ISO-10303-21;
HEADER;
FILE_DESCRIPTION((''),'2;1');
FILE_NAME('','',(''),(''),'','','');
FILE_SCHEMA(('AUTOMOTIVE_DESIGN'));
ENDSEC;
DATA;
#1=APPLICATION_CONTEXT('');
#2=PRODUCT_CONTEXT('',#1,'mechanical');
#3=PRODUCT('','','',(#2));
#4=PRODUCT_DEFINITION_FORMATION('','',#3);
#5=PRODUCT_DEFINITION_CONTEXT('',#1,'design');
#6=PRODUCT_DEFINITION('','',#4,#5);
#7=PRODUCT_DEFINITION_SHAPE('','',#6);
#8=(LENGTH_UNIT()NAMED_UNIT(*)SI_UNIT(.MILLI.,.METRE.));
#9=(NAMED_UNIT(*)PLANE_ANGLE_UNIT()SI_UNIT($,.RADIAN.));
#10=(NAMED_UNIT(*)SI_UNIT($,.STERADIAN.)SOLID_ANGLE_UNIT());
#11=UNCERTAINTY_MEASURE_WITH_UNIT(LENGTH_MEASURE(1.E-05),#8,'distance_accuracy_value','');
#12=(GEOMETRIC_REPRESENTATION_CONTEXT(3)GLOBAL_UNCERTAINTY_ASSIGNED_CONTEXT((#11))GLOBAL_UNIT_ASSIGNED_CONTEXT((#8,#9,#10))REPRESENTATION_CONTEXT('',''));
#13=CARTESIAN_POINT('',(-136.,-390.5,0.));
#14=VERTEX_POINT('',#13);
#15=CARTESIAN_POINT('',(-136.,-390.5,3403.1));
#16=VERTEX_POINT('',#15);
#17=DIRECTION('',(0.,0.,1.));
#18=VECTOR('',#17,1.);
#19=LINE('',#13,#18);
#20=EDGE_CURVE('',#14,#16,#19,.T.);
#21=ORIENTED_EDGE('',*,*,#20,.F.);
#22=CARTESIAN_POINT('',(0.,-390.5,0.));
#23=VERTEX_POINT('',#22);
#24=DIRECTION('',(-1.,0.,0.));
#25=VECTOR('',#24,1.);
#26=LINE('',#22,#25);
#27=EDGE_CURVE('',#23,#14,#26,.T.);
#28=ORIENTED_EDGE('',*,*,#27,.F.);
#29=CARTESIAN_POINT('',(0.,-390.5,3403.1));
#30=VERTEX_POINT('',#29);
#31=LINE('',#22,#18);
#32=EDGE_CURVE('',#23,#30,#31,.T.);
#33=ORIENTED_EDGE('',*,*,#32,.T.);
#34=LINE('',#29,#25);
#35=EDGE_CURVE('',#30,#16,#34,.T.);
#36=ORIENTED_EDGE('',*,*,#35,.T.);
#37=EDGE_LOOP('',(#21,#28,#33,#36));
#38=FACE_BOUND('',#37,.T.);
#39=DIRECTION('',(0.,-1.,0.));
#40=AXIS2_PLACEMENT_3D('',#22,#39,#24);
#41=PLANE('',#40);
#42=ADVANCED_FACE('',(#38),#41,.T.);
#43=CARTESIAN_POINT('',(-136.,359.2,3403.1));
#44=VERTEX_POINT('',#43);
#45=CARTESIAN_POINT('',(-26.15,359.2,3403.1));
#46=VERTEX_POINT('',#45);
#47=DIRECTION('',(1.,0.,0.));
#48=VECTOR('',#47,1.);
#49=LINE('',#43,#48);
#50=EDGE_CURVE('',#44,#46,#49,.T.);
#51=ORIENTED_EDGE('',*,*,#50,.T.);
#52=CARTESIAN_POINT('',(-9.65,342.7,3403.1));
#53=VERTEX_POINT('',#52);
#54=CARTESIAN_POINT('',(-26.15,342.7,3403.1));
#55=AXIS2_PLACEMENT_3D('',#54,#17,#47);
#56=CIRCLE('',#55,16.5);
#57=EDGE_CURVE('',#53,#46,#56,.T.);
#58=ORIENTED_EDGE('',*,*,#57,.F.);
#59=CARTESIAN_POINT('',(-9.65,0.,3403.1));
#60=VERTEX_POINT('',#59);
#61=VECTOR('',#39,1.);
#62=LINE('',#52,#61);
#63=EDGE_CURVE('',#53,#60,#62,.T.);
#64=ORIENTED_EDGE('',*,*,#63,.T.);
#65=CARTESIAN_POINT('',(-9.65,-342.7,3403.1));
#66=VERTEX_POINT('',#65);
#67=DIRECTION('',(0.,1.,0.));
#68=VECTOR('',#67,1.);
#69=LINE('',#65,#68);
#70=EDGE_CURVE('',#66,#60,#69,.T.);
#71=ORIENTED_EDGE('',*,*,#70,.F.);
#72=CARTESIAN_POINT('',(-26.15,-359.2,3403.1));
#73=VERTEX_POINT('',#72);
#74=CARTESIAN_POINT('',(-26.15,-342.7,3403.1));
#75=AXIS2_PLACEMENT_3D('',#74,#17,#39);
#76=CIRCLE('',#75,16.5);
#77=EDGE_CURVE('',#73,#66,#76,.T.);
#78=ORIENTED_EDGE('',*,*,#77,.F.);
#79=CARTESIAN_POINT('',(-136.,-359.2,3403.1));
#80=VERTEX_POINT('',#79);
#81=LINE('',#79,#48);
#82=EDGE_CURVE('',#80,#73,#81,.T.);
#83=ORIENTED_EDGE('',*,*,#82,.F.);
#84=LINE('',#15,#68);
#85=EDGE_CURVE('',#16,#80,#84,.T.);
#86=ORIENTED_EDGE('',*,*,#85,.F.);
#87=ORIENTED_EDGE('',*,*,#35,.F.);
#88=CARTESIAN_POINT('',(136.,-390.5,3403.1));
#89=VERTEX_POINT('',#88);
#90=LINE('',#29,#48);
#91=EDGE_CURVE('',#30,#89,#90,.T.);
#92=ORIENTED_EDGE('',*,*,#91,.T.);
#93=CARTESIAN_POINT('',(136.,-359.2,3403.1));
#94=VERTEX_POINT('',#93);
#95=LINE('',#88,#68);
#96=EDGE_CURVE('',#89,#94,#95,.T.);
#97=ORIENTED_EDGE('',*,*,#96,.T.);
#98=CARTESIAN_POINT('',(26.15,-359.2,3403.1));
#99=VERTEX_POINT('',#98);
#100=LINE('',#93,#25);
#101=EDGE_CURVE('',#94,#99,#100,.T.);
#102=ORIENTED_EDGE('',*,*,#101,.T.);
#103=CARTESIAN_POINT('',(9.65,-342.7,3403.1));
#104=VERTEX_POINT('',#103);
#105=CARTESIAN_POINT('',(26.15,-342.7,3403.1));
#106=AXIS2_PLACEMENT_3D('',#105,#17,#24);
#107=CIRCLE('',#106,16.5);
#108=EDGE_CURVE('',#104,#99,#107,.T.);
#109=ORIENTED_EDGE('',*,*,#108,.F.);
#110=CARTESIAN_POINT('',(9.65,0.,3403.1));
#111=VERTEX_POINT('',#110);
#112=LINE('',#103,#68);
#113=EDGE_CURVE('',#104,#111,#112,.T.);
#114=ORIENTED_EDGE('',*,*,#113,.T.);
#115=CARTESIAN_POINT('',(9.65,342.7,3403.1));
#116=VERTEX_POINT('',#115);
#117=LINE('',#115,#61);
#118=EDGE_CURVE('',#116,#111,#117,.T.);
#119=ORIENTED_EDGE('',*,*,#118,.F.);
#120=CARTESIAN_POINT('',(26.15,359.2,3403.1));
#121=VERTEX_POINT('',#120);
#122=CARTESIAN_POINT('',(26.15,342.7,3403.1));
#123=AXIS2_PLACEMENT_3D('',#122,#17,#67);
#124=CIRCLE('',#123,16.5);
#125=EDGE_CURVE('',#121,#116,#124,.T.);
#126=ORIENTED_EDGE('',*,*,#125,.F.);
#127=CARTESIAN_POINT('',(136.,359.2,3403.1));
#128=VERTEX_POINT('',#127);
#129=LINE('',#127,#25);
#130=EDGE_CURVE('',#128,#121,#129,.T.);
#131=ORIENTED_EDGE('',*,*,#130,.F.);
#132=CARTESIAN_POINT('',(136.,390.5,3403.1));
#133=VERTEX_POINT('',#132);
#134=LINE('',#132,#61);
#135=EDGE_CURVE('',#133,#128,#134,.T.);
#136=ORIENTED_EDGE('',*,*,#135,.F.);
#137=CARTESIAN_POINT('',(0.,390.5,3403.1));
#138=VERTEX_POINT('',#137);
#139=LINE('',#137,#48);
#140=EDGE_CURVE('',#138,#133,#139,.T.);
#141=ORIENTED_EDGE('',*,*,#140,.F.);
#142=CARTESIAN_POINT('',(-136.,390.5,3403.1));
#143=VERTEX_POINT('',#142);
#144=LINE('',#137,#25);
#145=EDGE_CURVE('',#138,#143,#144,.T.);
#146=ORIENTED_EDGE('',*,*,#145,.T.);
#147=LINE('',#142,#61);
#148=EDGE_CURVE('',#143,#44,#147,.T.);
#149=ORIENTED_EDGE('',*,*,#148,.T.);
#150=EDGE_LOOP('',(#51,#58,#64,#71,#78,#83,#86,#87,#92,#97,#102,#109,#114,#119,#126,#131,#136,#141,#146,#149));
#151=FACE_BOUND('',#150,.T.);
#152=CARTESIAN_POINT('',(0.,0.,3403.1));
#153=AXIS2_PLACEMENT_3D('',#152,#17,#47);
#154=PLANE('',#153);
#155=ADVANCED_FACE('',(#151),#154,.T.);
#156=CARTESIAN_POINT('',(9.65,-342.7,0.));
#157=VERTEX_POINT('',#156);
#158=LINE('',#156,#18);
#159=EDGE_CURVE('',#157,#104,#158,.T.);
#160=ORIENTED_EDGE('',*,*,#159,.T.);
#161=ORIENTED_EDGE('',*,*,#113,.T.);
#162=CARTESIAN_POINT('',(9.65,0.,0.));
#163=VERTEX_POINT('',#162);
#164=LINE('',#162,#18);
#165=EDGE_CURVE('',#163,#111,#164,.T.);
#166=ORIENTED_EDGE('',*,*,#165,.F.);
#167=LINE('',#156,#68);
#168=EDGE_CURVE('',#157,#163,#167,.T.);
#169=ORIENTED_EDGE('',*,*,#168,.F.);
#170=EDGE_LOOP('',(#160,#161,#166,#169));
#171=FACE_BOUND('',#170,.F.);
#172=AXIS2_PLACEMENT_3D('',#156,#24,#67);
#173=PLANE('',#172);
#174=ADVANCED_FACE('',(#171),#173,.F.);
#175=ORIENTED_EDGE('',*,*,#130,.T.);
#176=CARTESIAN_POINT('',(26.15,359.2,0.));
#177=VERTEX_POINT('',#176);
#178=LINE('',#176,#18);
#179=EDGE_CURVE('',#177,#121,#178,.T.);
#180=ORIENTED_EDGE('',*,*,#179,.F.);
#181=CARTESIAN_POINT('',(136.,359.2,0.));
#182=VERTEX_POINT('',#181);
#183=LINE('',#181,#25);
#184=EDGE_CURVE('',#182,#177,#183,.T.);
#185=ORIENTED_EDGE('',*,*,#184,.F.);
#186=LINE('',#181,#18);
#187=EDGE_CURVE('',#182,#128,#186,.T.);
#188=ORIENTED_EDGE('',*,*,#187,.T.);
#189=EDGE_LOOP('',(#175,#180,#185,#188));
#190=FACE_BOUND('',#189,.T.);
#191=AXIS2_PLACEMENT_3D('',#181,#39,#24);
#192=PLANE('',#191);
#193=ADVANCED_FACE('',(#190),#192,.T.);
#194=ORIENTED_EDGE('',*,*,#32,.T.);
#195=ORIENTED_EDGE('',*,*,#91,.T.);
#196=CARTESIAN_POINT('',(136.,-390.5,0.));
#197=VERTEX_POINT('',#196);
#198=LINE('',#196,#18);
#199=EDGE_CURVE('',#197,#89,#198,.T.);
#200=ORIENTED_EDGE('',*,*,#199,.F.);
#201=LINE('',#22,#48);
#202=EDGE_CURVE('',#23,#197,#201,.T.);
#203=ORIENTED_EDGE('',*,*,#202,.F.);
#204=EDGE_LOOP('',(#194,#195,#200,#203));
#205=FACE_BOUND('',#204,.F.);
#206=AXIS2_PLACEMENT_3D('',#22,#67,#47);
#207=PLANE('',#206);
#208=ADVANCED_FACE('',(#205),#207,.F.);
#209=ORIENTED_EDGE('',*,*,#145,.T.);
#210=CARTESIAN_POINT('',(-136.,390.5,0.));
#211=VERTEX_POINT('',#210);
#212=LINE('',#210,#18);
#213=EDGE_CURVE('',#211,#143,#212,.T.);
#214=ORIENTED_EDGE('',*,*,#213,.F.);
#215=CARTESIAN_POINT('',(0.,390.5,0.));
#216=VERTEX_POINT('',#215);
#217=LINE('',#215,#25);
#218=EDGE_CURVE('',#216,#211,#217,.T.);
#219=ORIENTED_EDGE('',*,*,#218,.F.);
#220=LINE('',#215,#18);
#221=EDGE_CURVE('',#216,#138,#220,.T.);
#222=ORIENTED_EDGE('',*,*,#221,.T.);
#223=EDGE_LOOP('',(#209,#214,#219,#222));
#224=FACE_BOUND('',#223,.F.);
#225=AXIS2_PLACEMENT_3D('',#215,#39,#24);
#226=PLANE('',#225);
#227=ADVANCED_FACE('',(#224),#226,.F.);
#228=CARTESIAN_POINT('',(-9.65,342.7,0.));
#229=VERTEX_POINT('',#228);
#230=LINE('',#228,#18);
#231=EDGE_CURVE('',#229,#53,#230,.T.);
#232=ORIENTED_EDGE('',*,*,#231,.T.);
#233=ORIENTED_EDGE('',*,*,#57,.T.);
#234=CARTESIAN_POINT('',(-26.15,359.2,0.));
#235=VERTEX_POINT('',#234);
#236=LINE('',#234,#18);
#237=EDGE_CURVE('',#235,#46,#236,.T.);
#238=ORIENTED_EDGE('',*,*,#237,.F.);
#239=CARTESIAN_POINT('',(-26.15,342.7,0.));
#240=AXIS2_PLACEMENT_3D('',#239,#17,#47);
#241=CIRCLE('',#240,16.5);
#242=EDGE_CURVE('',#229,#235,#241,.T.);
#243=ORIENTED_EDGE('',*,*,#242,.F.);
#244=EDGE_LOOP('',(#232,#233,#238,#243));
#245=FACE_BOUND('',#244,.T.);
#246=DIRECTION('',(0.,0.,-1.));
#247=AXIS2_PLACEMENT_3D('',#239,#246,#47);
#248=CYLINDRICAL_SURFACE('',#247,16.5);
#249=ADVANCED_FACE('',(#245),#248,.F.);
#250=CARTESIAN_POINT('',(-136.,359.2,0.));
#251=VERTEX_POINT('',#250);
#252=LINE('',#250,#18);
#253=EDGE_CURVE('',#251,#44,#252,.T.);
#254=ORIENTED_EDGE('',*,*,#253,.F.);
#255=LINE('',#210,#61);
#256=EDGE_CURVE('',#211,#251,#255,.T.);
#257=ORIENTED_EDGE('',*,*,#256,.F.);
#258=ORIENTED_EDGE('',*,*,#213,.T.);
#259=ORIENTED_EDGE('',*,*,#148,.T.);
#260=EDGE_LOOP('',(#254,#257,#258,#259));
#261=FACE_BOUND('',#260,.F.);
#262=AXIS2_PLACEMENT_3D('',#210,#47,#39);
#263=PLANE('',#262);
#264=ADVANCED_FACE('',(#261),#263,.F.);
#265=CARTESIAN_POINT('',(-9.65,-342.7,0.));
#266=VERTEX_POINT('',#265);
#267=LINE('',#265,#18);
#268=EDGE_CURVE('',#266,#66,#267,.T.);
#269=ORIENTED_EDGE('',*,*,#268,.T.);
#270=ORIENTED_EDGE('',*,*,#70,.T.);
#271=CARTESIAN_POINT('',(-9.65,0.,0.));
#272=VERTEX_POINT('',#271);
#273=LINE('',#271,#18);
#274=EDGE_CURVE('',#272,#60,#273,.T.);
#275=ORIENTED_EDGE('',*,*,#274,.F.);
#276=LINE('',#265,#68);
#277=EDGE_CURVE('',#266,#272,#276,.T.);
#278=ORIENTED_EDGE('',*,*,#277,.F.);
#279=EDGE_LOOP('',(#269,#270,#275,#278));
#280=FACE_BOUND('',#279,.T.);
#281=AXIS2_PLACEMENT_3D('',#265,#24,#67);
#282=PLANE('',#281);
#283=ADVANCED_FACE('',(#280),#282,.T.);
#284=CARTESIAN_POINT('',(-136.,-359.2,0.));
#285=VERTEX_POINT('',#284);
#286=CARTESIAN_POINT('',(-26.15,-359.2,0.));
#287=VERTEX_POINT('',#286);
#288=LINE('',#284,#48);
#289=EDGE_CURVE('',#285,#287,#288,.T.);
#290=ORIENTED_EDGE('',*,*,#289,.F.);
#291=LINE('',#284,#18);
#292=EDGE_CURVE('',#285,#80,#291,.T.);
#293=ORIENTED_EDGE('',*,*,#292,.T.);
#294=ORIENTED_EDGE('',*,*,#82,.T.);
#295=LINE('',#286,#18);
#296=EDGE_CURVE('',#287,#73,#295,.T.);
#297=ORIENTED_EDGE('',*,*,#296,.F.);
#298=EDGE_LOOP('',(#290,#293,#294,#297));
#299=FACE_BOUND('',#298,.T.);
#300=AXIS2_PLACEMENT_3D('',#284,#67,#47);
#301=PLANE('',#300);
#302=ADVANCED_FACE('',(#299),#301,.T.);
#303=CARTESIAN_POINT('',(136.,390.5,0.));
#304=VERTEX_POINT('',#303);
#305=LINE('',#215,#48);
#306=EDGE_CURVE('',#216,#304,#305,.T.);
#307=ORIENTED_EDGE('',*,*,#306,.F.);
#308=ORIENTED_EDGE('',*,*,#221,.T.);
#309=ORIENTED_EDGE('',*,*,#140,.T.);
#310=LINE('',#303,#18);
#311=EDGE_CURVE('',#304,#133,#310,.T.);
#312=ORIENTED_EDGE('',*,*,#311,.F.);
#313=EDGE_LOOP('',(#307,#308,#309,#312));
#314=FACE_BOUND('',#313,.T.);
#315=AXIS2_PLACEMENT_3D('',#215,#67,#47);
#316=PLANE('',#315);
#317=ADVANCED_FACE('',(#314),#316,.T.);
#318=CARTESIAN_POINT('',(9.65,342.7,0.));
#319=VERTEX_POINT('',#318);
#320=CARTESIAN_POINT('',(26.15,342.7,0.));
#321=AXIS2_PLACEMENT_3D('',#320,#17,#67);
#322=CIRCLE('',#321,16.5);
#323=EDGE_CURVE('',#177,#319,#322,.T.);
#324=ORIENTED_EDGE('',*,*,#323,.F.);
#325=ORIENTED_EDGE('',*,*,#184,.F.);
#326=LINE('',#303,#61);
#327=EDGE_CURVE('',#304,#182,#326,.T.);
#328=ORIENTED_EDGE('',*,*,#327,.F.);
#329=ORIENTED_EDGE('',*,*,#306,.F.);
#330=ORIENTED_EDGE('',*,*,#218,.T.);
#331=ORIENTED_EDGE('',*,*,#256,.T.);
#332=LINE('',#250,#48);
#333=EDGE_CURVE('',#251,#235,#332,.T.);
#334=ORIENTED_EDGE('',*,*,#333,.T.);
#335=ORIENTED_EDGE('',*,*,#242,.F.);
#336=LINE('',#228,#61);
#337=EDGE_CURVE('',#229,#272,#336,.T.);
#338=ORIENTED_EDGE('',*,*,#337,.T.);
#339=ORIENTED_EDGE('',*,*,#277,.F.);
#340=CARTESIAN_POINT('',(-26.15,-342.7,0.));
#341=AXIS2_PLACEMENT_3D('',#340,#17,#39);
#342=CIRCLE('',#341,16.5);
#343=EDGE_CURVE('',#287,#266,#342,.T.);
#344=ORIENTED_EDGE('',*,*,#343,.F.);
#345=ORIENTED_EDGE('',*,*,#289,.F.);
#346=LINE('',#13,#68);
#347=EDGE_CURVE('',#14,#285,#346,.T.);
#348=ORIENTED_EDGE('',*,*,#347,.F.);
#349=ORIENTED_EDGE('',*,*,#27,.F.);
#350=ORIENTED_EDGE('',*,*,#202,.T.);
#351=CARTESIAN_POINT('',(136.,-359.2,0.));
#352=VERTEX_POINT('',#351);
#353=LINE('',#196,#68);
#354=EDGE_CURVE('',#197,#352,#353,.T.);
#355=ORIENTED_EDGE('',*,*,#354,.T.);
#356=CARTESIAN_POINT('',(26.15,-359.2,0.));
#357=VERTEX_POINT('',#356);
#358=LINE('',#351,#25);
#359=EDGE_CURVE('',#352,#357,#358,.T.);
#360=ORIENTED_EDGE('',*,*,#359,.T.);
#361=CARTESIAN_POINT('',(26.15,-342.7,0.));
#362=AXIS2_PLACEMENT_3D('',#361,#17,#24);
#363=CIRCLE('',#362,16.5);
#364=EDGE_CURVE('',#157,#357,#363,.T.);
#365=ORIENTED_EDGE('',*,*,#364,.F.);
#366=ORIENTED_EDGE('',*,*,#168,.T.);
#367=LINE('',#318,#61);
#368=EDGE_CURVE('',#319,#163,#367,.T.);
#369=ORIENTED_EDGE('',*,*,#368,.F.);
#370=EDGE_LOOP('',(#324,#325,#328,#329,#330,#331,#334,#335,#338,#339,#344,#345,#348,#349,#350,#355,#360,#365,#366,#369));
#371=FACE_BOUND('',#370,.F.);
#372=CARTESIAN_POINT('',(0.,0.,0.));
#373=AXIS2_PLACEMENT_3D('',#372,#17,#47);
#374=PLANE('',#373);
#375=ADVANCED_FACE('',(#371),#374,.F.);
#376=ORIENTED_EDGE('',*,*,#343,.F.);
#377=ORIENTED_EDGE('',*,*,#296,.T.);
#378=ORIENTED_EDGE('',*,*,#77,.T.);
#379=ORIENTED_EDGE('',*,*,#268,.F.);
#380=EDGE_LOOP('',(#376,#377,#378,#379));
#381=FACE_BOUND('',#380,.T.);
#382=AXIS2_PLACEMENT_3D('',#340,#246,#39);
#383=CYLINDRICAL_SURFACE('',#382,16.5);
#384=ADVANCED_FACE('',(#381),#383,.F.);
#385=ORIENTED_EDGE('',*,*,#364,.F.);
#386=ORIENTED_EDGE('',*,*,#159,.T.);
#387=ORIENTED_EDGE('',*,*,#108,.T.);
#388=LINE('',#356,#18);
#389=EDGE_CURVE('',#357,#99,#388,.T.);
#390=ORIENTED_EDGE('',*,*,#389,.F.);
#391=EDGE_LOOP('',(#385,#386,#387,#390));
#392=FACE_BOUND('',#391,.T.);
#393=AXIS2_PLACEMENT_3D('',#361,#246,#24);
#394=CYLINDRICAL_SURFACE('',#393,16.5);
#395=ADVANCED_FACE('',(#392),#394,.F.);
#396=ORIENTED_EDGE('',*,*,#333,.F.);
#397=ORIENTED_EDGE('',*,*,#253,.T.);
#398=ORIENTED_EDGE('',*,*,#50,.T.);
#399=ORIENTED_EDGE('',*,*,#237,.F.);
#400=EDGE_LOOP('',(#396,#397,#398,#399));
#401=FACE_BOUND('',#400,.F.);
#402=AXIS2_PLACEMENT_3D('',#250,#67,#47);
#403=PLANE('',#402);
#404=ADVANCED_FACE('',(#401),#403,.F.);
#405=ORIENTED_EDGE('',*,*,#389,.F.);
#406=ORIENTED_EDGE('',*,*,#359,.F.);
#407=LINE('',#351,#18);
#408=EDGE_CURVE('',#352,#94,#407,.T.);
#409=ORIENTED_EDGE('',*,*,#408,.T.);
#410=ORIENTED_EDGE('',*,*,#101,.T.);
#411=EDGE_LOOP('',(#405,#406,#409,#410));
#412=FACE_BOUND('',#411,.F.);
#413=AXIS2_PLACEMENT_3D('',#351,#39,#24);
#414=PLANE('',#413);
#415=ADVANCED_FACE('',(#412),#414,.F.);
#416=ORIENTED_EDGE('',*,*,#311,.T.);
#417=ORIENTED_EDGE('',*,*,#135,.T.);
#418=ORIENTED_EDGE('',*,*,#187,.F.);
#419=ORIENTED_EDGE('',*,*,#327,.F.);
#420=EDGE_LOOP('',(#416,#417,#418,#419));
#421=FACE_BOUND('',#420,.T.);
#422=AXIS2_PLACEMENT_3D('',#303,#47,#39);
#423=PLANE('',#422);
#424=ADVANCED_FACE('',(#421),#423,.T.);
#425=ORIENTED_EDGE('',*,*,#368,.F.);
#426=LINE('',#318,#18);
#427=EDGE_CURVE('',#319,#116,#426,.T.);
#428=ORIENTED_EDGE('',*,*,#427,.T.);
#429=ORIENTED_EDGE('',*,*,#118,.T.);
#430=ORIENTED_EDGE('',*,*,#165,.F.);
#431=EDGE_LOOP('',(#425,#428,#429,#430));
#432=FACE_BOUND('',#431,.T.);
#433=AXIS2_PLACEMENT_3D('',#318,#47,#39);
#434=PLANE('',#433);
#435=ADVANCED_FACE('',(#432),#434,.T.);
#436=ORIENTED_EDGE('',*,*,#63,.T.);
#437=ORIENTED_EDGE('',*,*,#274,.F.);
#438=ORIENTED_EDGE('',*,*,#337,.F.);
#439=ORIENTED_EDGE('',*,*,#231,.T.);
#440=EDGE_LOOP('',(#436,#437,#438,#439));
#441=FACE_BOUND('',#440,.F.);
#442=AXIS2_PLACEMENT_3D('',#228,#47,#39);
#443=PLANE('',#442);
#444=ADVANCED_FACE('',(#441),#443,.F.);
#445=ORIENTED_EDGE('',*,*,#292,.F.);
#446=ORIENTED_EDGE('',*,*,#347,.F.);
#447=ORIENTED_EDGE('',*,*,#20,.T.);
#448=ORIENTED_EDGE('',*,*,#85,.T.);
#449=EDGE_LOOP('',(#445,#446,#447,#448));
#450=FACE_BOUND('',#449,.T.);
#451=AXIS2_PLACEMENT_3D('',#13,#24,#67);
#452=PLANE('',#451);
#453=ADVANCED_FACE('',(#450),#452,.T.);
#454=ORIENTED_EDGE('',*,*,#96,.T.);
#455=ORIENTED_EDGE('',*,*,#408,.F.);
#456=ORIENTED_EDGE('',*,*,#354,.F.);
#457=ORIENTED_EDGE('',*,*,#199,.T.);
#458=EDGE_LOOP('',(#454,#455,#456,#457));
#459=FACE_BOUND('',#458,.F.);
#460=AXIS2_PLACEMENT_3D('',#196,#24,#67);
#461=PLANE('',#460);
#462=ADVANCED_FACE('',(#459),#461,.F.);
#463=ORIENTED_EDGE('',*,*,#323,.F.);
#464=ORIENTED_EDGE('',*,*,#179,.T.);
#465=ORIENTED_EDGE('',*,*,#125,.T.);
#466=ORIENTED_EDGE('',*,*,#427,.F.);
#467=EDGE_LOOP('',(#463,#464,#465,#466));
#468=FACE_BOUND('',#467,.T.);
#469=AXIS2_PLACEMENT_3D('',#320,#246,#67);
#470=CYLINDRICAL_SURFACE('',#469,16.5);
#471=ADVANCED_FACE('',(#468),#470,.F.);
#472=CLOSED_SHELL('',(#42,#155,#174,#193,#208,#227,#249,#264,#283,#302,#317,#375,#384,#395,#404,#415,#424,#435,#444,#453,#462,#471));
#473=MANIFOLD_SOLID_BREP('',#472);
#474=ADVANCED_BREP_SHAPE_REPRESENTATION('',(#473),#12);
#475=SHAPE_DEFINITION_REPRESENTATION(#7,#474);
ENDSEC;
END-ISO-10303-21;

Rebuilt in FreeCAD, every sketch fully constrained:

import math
import FreeCAD as App
import Part
import Sketcher
from FreeCAD import Vector
Q = App.Units.Quantity

doc = App.newDocument("Part")
body = doc.addObject("PartDesign::Body", "Body")

# Sketch on XY plane
sketch1 = body.newObject("Sketcher::SketchObject", "Sketch")
sketch1.AttachmentSupport = (doc.getObject("XY_Plane"), [""])
sketch1.MapMode = "FlatFace"
sketch1.addGeometry([
    Part.LineSegment(Vector(-136, -359, 0), Vector(-136, -390, 0)),  # 0
    Part.LineSegment(Vector(-136, -390, 0), Vector(136, -390, 0)),  # 1
    Part.LineSegment(Vector(136, -390, 0), Vector(136, -359, 0)),  # 2
    Part.LineSegment(Vector(136, -359, 0), Vector(26, -359, 0)),  # 3
    Part.ArcOfCircle(Part.Circle(Vector(26, -343, 0), Vector(0, 0, 1), 16), math.radians(180), math.radians(270)),  # 4
    Part.LineSegment(Vector(10, -343, 0), Vector(10, 343, 0)),  # 5
    Part.ArcOfCircle(Part.Circle(Vector(26, 343, 0), Vector(0, 0, 1), 16), math.radians(90), math.radians(180)),  # 6
    Part.LineSegment(Vector(26, 359, 0), Vector(136, 359, 0)),  # 7
    Part.LineSegment(Vector(136, 359, 0), Vector(136, 390, 0)),  # 8
    Part.LineSegment(Vector(136, 390, 0), Vector(-136, 390, 0)),  # 9
    Part.LineSegment(Vector(-136, 390, 0), Vector(-136, 359, 0)),  # 10
    Part.LineSegment(Vector(-136, 359, 0), Vector(-26, 359, 0)),  # 11
    Part.ArcOfCircle(Part.Circle(Vector(-26, 343, 0), Vector(0, 0, 1), 16), math.radians(0), math.radians(90)),  # 12
    Part.LineSegment(Vector(-10, 343, 0), Vector(-10, -343, 0)),  # 13
    Part.ArcOfCircle(Part.Circle(Vector(-26, -343, 0), Vector(0, 0, 1), 16), math.radians(-90), math.radians(0)),  # 14
    Part.LineSegment(Vector(-26, -359, 0), Vector(-136, -359, 0)),  # 15
], False)
sketch1.addConstraint([
    Sketcher.Constraint("Coincident", 0, 2, 1, 1),
    Sketcher.Constraint("Coincident", 1, 2, 2, 1),
    Sketcher.Constraint("Coincident", 2, 2, 3, 1),
    Sketcher.Constraint("Tangent", 3, 2, 4, 2),
    Sketcher.Constraint("Tangent", 4, 1, 5, 1),
    Sketcher.Constraint("Tangent", 5, 2, 6, 2),
    Sketcher.Constraint("Tangent", 6, 1, 7, 1),
    Sketcher.Constraint("Coincident", 7, 2, 8, 1),
    Sketcher.Constraint("Coincident", 8, 2, 9, 1),
    Sketcher.Constraint("Coincident", 9, 2, 10, 1),
    Sketcher.Constraint("Coincident", 10, 2, 11, 1),
    Sketcher.Constraint("Tangent", 11, 2, 12, 2),
    Sketcher.Constraint("Tangent", 12, 1, 13, 1),
    Sketcher.Constraint("Tangent", 13, 2, 14, 2),
    Sketcher.Constraint("Tangent", 14, 1, 15, 1),
    Sketcher.Constraint("Coincident", 15, 2, 0, 1),
    Sketcher.Constraint("Vertical", 0),
    Sketcher.Constraint("Horizontal", 1),
    Sketcher.Constraint("Vertical", 2),
    Sketcher.Constraint("Horizontal", 3),
    Sketcher.Constraint("Vertical", 5),
    Sketcher.Constraint("Horizontal", 7),
    Sketcher.Constraint("Vertical", 8),
    Sketcher.Constraint("Horizontal", 9),
    Sketcher.Constraint("Vertical", 10),
    Sketcher.Constraint("Horizontal", 11),
    Sketcher.Constraint("Vertical", 13),
    Sketcher.Constraint("Horizontal", 15),
    Sketcher.Constraint("Equal", 4, 6),
    Sketcher.Constraint("Equal", 6, 12),
    Sketcher.Constraint("Equal", 12, 14),
    Sketcher.Constraint("Symmetric", 4, 3, 12, 3, -1, 1),
    Sketcher.Constraint("Symmetric", 0, 2, 8, 2, -1, 1),
    Sketcher.Constraint("Symmetric", 7, 2, 10, 2, -2),
    Sketcher.Constraint("Symmetric", 2, 2, 15, 2, -2),
    Sketcher.Constraint("Radius", 4, Q("16.5 mm")),
    Sketcher.Constraint("DistanceY", 0, 2, 0, 1, Q("31.3 mm")),
    Sketcher.Constraint("DistanceX", 0, 2, -1, 1, Q("136 mm")),
    Sketcher.Constraint("DistanceY", 0, 2, -1, 1, Q("390.5 mm")),
    Sketcher.Constraint("DistanceX", -1, 1, 4, 1, Q("9.65 mm")),
])
pad1 = body.newObject("PartDesign::Pad", "Pad")
pad1.Profile = sketch1
pad1.Length = 3403.1

doc.recompute()
